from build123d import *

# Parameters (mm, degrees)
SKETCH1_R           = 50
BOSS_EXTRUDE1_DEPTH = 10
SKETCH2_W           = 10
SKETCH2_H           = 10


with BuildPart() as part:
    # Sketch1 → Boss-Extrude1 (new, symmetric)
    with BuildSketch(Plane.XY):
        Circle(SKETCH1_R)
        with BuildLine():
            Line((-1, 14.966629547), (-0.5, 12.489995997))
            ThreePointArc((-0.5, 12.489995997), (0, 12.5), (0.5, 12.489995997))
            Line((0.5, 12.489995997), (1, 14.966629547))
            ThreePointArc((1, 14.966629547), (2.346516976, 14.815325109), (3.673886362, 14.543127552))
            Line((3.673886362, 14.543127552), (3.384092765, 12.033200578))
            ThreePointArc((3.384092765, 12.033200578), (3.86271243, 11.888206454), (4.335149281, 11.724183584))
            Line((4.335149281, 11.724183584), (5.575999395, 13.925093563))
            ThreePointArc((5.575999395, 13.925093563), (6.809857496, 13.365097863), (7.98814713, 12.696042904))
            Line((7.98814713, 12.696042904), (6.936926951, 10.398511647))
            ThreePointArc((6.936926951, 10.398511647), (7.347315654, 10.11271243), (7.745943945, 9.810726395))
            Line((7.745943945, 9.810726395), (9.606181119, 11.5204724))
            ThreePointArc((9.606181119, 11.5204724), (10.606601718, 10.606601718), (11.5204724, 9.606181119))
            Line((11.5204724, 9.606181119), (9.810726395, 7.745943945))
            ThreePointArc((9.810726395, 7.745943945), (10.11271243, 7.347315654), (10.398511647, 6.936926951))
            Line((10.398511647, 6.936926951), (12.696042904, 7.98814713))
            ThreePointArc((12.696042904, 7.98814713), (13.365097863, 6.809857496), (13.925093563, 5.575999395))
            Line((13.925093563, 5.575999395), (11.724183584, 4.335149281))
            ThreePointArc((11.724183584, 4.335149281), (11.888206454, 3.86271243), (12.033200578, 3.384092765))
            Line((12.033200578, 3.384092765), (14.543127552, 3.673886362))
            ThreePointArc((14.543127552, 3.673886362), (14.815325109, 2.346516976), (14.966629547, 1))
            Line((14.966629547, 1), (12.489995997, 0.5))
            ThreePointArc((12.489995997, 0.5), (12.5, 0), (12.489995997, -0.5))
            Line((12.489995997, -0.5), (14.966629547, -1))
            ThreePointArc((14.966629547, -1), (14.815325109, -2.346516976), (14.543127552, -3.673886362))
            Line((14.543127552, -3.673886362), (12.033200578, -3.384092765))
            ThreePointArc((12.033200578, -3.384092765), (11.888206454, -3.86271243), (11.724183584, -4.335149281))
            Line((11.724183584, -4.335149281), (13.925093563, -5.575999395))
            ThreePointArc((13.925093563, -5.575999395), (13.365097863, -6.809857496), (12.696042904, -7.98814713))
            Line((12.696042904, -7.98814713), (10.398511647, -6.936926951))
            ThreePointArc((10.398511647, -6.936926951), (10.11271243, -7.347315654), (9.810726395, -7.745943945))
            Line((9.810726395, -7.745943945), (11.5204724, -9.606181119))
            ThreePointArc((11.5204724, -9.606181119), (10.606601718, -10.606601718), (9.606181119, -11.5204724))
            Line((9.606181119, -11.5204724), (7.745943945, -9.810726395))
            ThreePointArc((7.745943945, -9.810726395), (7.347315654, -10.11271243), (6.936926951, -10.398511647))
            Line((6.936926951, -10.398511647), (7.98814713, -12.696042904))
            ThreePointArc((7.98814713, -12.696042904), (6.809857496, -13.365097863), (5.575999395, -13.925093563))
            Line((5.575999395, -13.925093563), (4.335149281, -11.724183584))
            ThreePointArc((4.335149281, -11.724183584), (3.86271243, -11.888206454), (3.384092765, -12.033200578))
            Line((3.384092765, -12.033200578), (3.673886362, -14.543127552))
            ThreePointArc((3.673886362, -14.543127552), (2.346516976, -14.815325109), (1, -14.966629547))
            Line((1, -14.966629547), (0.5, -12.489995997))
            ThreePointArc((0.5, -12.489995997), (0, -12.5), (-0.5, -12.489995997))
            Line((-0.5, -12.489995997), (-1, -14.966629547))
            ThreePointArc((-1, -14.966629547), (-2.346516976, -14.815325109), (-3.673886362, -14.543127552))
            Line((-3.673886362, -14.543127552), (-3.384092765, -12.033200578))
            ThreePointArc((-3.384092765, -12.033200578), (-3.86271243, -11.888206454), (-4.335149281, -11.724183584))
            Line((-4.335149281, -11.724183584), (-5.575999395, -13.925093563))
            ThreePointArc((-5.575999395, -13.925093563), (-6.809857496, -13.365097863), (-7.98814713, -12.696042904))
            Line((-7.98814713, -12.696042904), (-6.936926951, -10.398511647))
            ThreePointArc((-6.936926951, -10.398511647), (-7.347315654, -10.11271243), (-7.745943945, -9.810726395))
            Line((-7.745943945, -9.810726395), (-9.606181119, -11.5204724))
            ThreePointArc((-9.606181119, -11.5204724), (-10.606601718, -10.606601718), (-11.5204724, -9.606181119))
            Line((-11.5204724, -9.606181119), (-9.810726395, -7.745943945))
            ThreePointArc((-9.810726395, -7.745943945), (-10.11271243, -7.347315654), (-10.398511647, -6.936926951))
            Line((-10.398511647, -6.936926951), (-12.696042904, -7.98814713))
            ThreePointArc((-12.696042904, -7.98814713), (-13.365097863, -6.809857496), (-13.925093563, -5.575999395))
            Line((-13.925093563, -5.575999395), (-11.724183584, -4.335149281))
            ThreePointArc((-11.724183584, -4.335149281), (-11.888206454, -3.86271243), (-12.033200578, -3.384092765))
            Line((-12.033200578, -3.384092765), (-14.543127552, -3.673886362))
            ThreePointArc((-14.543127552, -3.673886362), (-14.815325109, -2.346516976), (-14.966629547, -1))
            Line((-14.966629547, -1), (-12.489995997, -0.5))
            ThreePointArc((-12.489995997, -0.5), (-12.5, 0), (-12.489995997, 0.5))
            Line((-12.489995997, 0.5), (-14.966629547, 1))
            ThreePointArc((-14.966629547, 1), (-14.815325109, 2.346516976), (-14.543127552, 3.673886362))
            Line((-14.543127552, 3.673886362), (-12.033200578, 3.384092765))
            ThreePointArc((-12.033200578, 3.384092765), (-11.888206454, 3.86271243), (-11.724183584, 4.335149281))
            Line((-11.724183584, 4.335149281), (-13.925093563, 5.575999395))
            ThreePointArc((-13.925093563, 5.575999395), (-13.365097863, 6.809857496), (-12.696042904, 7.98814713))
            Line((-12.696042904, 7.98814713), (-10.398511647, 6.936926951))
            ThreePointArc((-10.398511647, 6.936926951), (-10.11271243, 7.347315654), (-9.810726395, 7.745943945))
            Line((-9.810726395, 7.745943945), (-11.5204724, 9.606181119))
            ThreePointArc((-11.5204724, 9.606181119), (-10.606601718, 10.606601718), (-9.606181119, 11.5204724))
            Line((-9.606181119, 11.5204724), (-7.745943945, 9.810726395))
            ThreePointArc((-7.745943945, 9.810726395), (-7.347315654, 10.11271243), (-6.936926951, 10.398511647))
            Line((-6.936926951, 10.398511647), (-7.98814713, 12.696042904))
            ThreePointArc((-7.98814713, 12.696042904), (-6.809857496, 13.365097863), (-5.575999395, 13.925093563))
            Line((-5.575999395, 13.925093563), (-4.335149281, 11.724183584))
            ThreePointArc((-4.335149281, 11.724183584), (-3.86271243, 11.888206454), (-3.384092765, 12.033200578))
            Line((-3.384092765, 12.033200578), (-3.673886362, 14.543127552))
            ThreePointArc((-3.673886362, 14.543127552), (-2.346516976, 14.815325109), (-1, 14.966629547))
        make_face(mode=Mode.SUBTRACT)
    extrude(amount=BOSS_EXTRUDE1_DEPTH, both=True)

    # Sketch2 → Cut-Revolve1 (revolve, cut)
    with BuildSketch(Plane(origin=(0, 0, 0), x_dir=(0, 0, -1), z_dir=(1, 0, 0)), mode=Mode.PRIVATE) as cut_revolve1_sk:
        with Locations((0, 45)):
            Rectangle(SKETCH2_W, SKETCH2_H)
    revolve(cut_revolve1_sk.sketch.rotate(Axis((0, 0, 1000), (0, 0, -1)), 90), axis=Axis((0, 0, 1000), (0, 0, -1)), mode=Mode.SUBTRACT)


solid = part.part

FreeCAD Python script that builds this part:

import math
import FreeCAD as App
import Part
import Sketcher

V = App.Vector

doc = App.newDocument("Part")
body = doc.addObject("PartDesign::Body", "Body")

sketch1 = body.newObject("Sketcher::SketchObject", "Sketch")
sketch1.AttachmentSupport = (doc.getObject("XY_Plane"), [""])
sketch1.MapMode = "FlatFace"
sketch1.addGeometry(Part.Circle(V(0, 0, 0), V(0, 0, 1), 50), False)
sketch1.addGeometry(Part.ArcOfCircle(Part.Circle(V(0, 0, 0), V(0, 0, 1), 15), math.radians(93.822554), math.radians(104.177446)), False)
sketch1.addGeometry(Part.LineSegment(V(-1, 14.96663, 0), V(-0.5, 12.489996, 0)), False)
sketch1.addGeometry(Part.ArcOfCircle(Part.Circle(V(0, 0, 0), V(0, 0, 1), 12.5), math.radians(87.707557), math.radians(92.292443)), False)
sketch1.addGeometry(Part.LineSegment(V(0.5, 12.489996, 0), V(1, 14.96663, 0)), False)
sketch1.addGeometry(Part.ArcOfCircle(Part.Circle(V(0, 0, 0), V(0, 0, 1), 15), math.radians(75.822554), math.radians(86.177446)), False)
sketch1.addGeometry(Part.LineSegment(V(3.673886, 14.543128, 0), V(3.384093, 12.033201, 0)), False)
sketch1.addGeometry(Part.ArcOfCircle(Part.Circle(V(0, 0.000001, 0), V(0, 0, 1), 12.499999), math.radians(69.707557), math.radians(74.292443)), False)
sketch1.addGeometry(Part.LineSegment(V(4.335149, 11.724184, 0), V(5.575999, 13.925094, 0)), False)
sketch1.addGeometry(Part.ArcOfCircle(Part.Circle(V(0, 0, 0), V(0, 0, 1), 15), math.radians(57.822554), math.radians(68.177446)), False)
sketch1.addGeometry(Part.LineSegment(V(7.988147, 12.696043, 0), V(6.936927, 10.398512, 0)), False)
sketch1.addGeometry(Part.ArcOfCircle(Part.Circle(V(0, 0.000001, 0), V(0, 0, 1), 12.499999), math.radians(51.707557), math.radians(56.292443)), False)
sketch1.addGeometry(Part.LineSegment(V(7.745944, 9.810726, 0), V(9.606181, 11.520472, 0)), False)
sketch1.addGeometry(Part.ArcOfCircle(Part.Circle(V(0, 0, 0), V(0, 0, 1), 15), math.radians(39.822554), math.radians(50.177446)), False)
sketch1.addGeometry(Part.LineSegment(V(11.520472, 9.606181, 0), V(9.810726, 7.745944, 0)), False)
sketch1.addGeometry(Part.ArcOfCircle(Part.Circle(V(0.000001, 0, 0), V(0, 0, 1), 12.499999), math.radians(33.707557), math.radians(38.292443)), False)
sketch1.addGeometry(Part.LineSegment(V(10.398512, 6.936927, 0), V(12.696043, 7.988147, 0)), False)
sketch1.addGeometry(Part.ArcOfCircle(Part.Circle(V(0, 0, 0), V(0, 0, 1), 15), math.radians(21.822554), math.radians(32.177446)), False)
sketch1.addGeometry(Part.LineSegment(V(13.925094, 5.575999, 0), V(11.724184, 4.335149, 0)), False)
sketch1.addGeometry(Part.ArcOfCircle(Part.Circle(V(0.000001, 0, 0), V(0, 0, 1), 12.499999), math.radians(15.707557), math.radians(20.292443)), False)
sketch1.addGeometry(Part.LineSegment(V(12.033201, 3.384093, 0), V(14.543128, 3.673886, 0)), False)
sketch1.addGeometry(Part.ArcOfCircle(Part.Circle(V(0, 0, 0), V(0, 0, 1), 15), math.radians(3.822554), math.radians(14.177446)), False)
sketch1.addGeometry(Part.LineSegment(V(14.96663, 1, 0), V(12.489996, 0.5, 0)), False)
sketch1.addGeometry(Part.ArcOfCircle(Part.Circle(V(0, 0, 0), V(0, 0, 1), 12.5), math.radians(-2.292443), math.radians(2.292443)), False)
sketch1.addGeometry(Part.LineSegment(V(12.489996, -0.5, 0), V(14.96663, -1, 0)), False)
sketch1.addGeometry(Part.ArcOfCircle(Part.Circle(V(0, 0, 0), V(0, 0, 1), 15), math.radians(-14.177446), math.radians(-3.822554)), False)
sketch1.addGeometry(Part.LineSegment(V(14.543128, -3.673886, 0), V(12.033201, -3.384093, 0)), False)
sketch1.addGeometry(Part.ArcOfCircle(Part.Circle(V(0.000001, 0, 0), V(0, 0, 1), 12.499999), math.radians(-20.292443), math.radians(-15.707557)), False)
sketch1.addGeometry(Part.LineSegment(V(11.724184, -4.335149, 0), V(13.925094, -5.575999, 0)), False)
sketch1.addGeometry(Part.ArcOfCircle(Part.Circle(V(0, 0, 0), V(0, 0, 1), 15), math.radians(-32.177446), math.radians(-21.822554)), False)
sketch1.addGeometry(Part.LineSegment(V(12.696043, -7.988147, 0), V(10.398512, -6.936927, 0)), False)
sketch1.addGeometry(Part.ArcOfCircle(Part.Circle(V(0.000001, 0, 0), V(0, 0, 1), 12.499999), math.radians(-38.292443), math.radians(-33.707557)), False)
sketch1.addGeometry(Part.LineSegment(V(9.810726, -7.745944, 0), V(11.520472, -9.606181, 0)), False)
sketch1.addGeometry(Part.ArcOfCircle(Part.Circle(V(0, 0, 0), V(0, 0, 1), 15), math.radians(-50.177446), math.radians(-39.822554)), False)
sketch1.addGeometry(Part.LineSegment(V(9.606181, -11.520472, 0), V(7.745944, -9.810726, 0)), False)
sketch1.addGeometry(Part.ArcOfCircle(Part.Circle(V(0, -0.000001, 0), V(0, 0, 1), 12.499999), math.radians(-56.292443), math.radians(-51.707557)), False)
sketch1.addGeometry(Part.LineSegment(V(6.936927, -10.398512, 0), V(7.988147, -12.696043, 0)), False)
sketch1.addGeometry(Part.ArcOfCircle(Part.Circle(V(0, 0, 0), V(0, 0, 1), 15), math.radians(-68.177446), math.radians(-57.822554)), False)
sketch1.addGeometry(Part.LineSegment(V(5.575999, -13.925094, 0), V(4.335149, -11.724184, 0)), False)
sketch1.addGeometry(Part.ArcOfCircle(Part.Circle(V(0, -0.000001, 0), V(0, 0, 1), 12.499999), math.radians(-74.292443), math.radians(-69.707557)), False)
sketch1.addGeometry(Part.LineSegment(V(3.384093, -12.033201, 0), V(3.673886, -14.543128, 0)), False)
sketch1.addGeometry(Part.ArcOfCircle(Part.Circle(V(0, 0, 0), V(0, 0, 1), 15), math.radians(-86.177446), math.radians(-75.822554)), False)
sketch1.addGeometry(Part.LineSegment(V(1, -14.96663, 0), V(0.5, -12.489996, 0)), False)
sketch1.addGeometry(Part.ArcOfCircle(Part.Circle(V(0, 0, 0), V(0, 0, 1), 12.5), math.radians(-92.292443), math.radians(-87.707557)), False)
sketch1.addGeometry(Part.LineSegment(V(-0.5, -12.489996, 0), V(-1, -14.96663, 0)), False)
sketch1.addGeometry(Part.ArcOfCircle(Part.Circle(V(0, 0, 0), V(0, 0, 1), 15), math.radians(-104.177446), math.radians(-93.822554)), False)
sketch1.addGeometry(Part.LineSegment(V(-3.673886, -14.543128, 0), V(-3.384093, -12.033201, 0)), False)
sketch1.addGeometry(Part.ArcOfCircle(Part.Circle(V(0, -0.000001, 0), V(0, 0, 1), 12.499999), math.radians(-110.292443), math.radians(-105.707557)), False)
sketch1.addGeometry(Part.LineSegment(V(-4.335149, -11.724184, 0), V(-5.575999, -13.925094, 0)), False)
sketch1.addGeometry(Part.ArcOfCircle(Part.Circle(V(0, 0, 0), V(0, 0, 1), 15), math.radians(-122.177446), math.radians(-111.822554)), False)
sketch1.addGeometry(Part.LineSegment(V(-7.988147, -12.696043, 0), V(-6.936927, -10.398512, 0)), False)
sketch1.addGeometry(Part.ArcOfCircle(Part.Circle(V(0, -0.000001, 0), V(0, 0, 1), 12.499999), math.radians(-128.292443), math.radians(-123.707557)), False)
sketch1.addGeometry(Part.LineSegment(V(-7.745944, -9.810726, 0), V(-9.606181, -11.520472, 0)), False)
sketch1.addGeometry(Part.ArcOfCircle(Part.Circle(V(0, 0, 0), V(0, 0, 1), 15), math.radians(-140.177446), math.radians(-129.822554)), False)
sketch1.addGeometry(Part.LineSegment(V(-11.520472, -9.606181, 0), V(-9.810726, -7.745944, 0)), False)
sketch1.addGeometry(Part.ArcOfCircle(Part.Circle(V(-0.000001, 0, 0), V(0, 0, 1), 12.499999), math.radians(-146.292443), math.radians(-141.707557)), False)
sketch1.addGeometry(Part.LineSegment(V(-10.398512, -6.936927, 0), V(-12.696043, -7.988147, 0)), False)
sketch1.addGeometry(Part.ArcOfCircle(Part.Circle(V(0, 0, 0), V(0, 0, 1), 15), math.radians(-158.177446), math.radians(-147.822554)), False)
sketch1.addGeometry(Part.LineSegment(V(-13.925094, -5.575999, 0), V(-11.724184, -4.335149, 0)), False)
sketch1.addGeometry(Part.ArcOfCircle(Part.Circle(V(-0.000001, 0, 0), V(0, 0, 1), 12.499999), math.radians(-164.292443), math.radians(-159.707557)), False)
sketch1.addGeometry(Part.LineSegment(V(-12.033201, -3.384093, 0), V(-14.543128, -3.673886, 0)), False)
sketch1.addGeometry(Part.ArcOfCircle(Part.Circle(V(0, 0, 0), V(0, 0, 1), 15), math.radians(-176.177446), math.radians(-165.822554)), False)
sketch1.addGeometry(Part.LineSegment(V(-14.96663, -1, 0), V(-12.489996, -0.5, 0)), False)
sketch1.addGeometry(Part.ArcOfCircle(Part.Circle(V(0, 0, 0), V(0, 0, 1), 12.5), math.radians(177.707557), math.radians(182.292443)), False)
sketch1.addGeometry(Part.LineSegment(V(-12.489996, 0.5, 0), V(-14.96663, 1, 0)), False)
sketch1.addGeometry(Part.ArcOfCircle(Part.Circle(V(0, 0, 0), V(0, 0, 1), 15), math.radians(165.822554), math.radians(176.177446)), False)
sketch1.addGeometry(Part.LineSegment(V(-14.543128, 3.673886, 0), V(-12.033201, 3.384093, 0)), False)
sketch1.addGeometry(Part.ArcOfCircle(Part.Circle(V(-0.000001, 0, 0), V(0, 0, 1), 12.499999), math.radians(159.707557), math.radians(164.292443)), False)
sketch1.addGeometry(Part.LineSegment(V(-11.724184, 4.335149, 0), V(-13.925094, 5.575999, 0)), False)
sketch1.addGeometry(Part.ArcOfCircle(Part.Circle(V(0, 0, 0), V(0, 0, 1), 15), math.radians(147.822554), math.radians(158.177446)), False)
sketch1.addGeometry(Part.LineSegment(V(-12.696043, 7.988147, 0), V(-10.398512, 6.936927, 0)), False)
sketch1.addGeometry(Part.ArcOfCircle(Part.Circle(V(-0.000001, 0, 0), V(0, 0, 1), 12.499999), math.radians(141.707557), math.radians(146.292443)), False)
sketch1.addGeometry(Part.LineSegment(V(-9.810726, 7.745944, 0), V(-11.520472, 9.606181, 0)), False)
sketch1.addGeometry(Part.ArcOfCircle(Part.Circle(V(0, 0, 0), V(0, 0, 1), 15), math.radians(129.822554), math.radians(140.177446)), False)
sketch1.addGeometry(Part.LineSegment(V(-9.606181, 11.520472, 0), V(-7.745944, 9.810726, 0)), False)
sketch1.addGeometry(Part.ArcOfCircle(Part.Circle(V(0, 0.000001, 0), V(0, 0, 1), 12.499999), math.radians(123.707557), math.radians(128.292443)), False)
sketch1.addGeometry(Part.LineSegment(V(-6.936927, 10.398512, 0), V(-7.988147, 12.696043, 0)), False)
sketch1.addGeometry(Part.ArcOfCircle(Part.Circle(V(0, 0, 0), V(0, 0, 1), 15), math.radians(111.822554), math.radians(122.177446)), False)
sketch1.addGeometry(Part.LineSegment(V(-5.575999, 13.925094, 0), V(-4.335149, 11.724184, 0)), False)
sketch1.addGeometry(Part.ArcOfCircle(Part.Circle(V(0, 0.000001, 0), V(0, 0, 1), 12.499999), math.radians(105.707557), math.radians(110.292443)), False)
sketch1.addGeometry(Part.LineSegment(V(-3.384093, 12.033201, 0), V(-3.673886, 14.543128, 0)), False)
sketch1.addConstraint(Sketcher.Constraint("Coincident", 1, 1, 2, 1))
sketch1.addConstraint(Sketcher.Constraint("Coincident", 2, 2, 3, 2))
sketch1.addConstraint(Sketcher.Constraint("Coincident", 3, 1, 4, 1))
sketch1.addConstraint(Sketcher.Constraint("Coincident", 4, 2, 5, 2))
sketch1.addConstraint(Sketcher.Constraint("Coincident", 5, 1, 6, 1))
sketch1.addConstraint(Sketcher.Constraint("Coincident", 6, 2, 7, 2))
sketch1.addConstraint(Sketcher.Constraint("Coincident", 7, 1, 8, 1))
sketch1.addConstraint(Sketcher.Constraint("Coincident", 8, 2, 9, 2))
sketch1.addConstraint(Sketcher.Constraint("Coincident", 9, 1, 10, 1))
sketch1.addConstraint(Sketcher.Constraint("Coincident", 10, 2, 11, 2))
sketch1.addConstraint(Sketcher.Constraint("Coincident", 11, 1, 12, 1))
sketch1.addConstraint(Sketcher.Constraint("Coincident", 12, 2, 13, 2))
sketch1.addConstraint(Sketcher.Constraint("Coincident", 13, 1, 14, 1))
sketch1.addConstraint(Sketcher.Constraint("Coincident", 14, 2, 15, 2))
sketch1.addConstraint(Sketcher.Constraint("Coincident", 15, 1, 16, 1))
sketch1.addConstraint(Sketcher.Constraint("Coincident", 16, 2, 17, 2))
sketch1.addConstraint(Sketcher.Constraint("Coincident", 17, 1, 18, 1))
sketch1.addConstraint(Sketcher.Constraint("Coincident", 18, 2, 19, 2))
sketch1.addConstraint(Sketcher.Constraint("Coincident", 19, 1, 20, 1))
sketch1.addConstraint(Sketcher.Constraint("Coincident", 20, 2, 21, 2))
sketch1.addConstraint(Sketcher.Constraint("Coincident", 21, 1, 22, 1))
sketch1.addConstraint(Sketcher.Constraint("Coincident", 22, 2, 23, 2))
sketch1.addConstraint(Sketcher.Constraint("Coincident", 23, 1, 24, 1))
sketch1.addConstraint(Sketcher.Constraint("Coincident", 24, 2, 25, 2))
sketch1.addConstraint(Sketcher.Constraint("Coincident", 25, 1, 26, 1))
sketch1.addConstraint(Sketcher.Constraint("Coincident", 26, 2, 27, 2))
sketch1.addConstraint(Sketcher.Constraint("Coincident", 27, 1, 28, 1))
sketch1.addConstraint(Sketcher.Constraint("Coincident", 28, 2, 29, 2))
sketch1.addConstraint(Sketcher.Constraint("Coincident", 29, 1, 30, 1))
sketch1.addConstraint(Sketcher.Constraint("Coincident", 30, 2, 31, 2))
sketch1.addConstraint(Sketcher.Constraint("Coincident", 31, 1, 32, 1))
sketch1.addConstraint(Sketcher.Constraint("Coincident", 32, 2, 33, 2))
sketch1.addConstraint(Sketcher.Constraint("Coincident", 33, 1, 34, 1))
sketch1.addConstraint(Sketcher.Constraint("Coincident", 34, 2, 35, 2))
sketch1.addConstraint(Sketcher.Constraint("Coincident", 35, 1, 36, 1))
sketch1.addConstraint(Sketcher.Constraint("Coincident", 36, 2, 37, 2))
sketch1.addConstraint(Sketcher.Constraint("Coincident", 37, 1, 38, 1))
sketch1.addConstraint(Sketcher.Constraint("Coincident", 38, 2, 39, 2))
sketch1.addConstraint(Sketcher.Constraint("Coincident", 39, 1, 40, 1))
sketch1.addConstraint(Sketcher.Constraint("Coincident", 40, 2, 41, 2))
sketch1.addConstraint(Sketcher.Constraint("Coincident", 41, 1, 42, 1))
sketch1.addConstraint(Sketcher.Constraint("Coincident", 42, 2, 43, 2))
sketch1.addConstraint(Sketcher.Constraint("Coincident", 43, 1, 44, 1))
sketch1.addConstraint(Sketcher.Constraint("Coincident", 44, 2, 45, 2))
sketch1.addConstraint(Sketcher.Constraint("Coincident", 45, 1, 46, 1))
sketch1.addConstraint(Sketcher.Constraint("Coincident", 46, 2, 47, 2))
sketch1.addConstraint(Sketcher.Constraint("Coincident", 47, 1, 48, 1))
sketch1.addConstraint(Sketcher.Constraint("Coincident", 48, 2, 49, 2))
sketch1.addConstraint(Sketcher.Constraint("Coincident", 49, 1, 50, 1))
sketch1.addConstraint(Sketcher.Constraint("Coincident", 50, 2, 51, 2))
sketch1.addConstraint(Sketcher.Constraint("Coincident", 51, 1, 52, 1))
sketch1.addConstraint(Sketcher.Constraint("Coincident", 52, 2, 53, 2))
sketch1.addConstraint(Sketcher.Constraint("Coincident", 53, 1, 54, 1))
sketch1.addConstraint(Sketcher.Constraint("Coincident", 54, 2, 55, 2))
sketch1.addConstraint(Sketcher.Constraint("Coincident", 55, 1, 56, 1))
sketch1.addConstraint(Sketcher.Constraint("Coincident", 56, 2, 57, 2))
sketch1.addConstraint(Sketcher.Constraint("Coincident", 57, 1, 58, 1))
sketch1.addConstraint(Sketcher.Constraint("Coincident", 58, 2, 59, 2))
sketch1.addConstraint(Sketcher.Constraint("Coincident", 59, 1, 60, 1))
sketch1.addConstraint(Sketcher.Constraint("Coincident", 60, 2, 61, 2))
sketch1.addConstraint(Sketcher.Constraint("Coincident", 61, 1, 62, 1))
sketch1.addConstraint(Sketcher.Constraint("Coincident", 62, 2, 63, 2))
sketch1.addConstraint(Sketcher.Constraint("Coincident", 63, 1, 64, 1))
sketch1.addConstraint(Sketcher.Constraint("Coincident", 64, 2, 65, 2))
sketch1.addConstraint(Sketcher.Constraint("Coincident", 65, 1, 66, 1))
sketch1.addConstraint(Sketcher.Constraint("Coincident", 66, 2, 67, 2))
sketch1.addConstraint(Sketcher.Constraint("Coincident", 67, 1, 68, 1))
sketch1.addConstraint(Sketcher.Constraint("Coincident", 68, 2, 69, 2))
sketch1.addConstraint(Sketcher.Constraint("Coincident", 69, 1, 70, 1))
sketch1.addConstraint(Sketcher.Constraint("Coincident", 70, 2, 71, 2))
sketch1.addConstraint(Sketcher.Constraint("Coincident", 71, 1, 72, 1))
sketch1.addConstraint(Sketcher.Constraint("Coincident", 72, 2, 73, 2))
sketch1.addConstraint(Sketcher.Constraint("Coincident", 73, 1, 74, 1))
sketch1.addConstraint(Sketcher.Constraint("Coincident", 74, 2, 75, 2))
sketch1.addConstraint(Sketcher.Constraint("Coincident", 75, 1, 76, 1))
sketch1.addConstraint(Sketcher.Constraint("Coincident", 76, 2, 77, 2))
sketch1.addConstraint(Sketcher.Constraint("Coincident", 77, 1, 78, 1))
sketch1.addConstraint(Sketcher.Constraint("Coincident", 78, 2, 79, 2))
sketch1.addConstraint(Sketcher.Constraint("Coincident", 79, 1, 80, 1))
sketch1.addConstraint(Sketcher.Constraint("Coincident", 80, 2, 1, 2))
sketch1.addConstraint(Sketcher.Constraint("Coincident", 0, 3, -1, 1))
sketch1.addConstraint(Sketcher.Constraint("Coincident", 1, 3, -1, 1))
sketch1.addConstraint(Sketcher.Constraint("Coincident", 3, 3, -1, 1))
sketch1.addConstraint(Sketcher.Constraint("Coincident", 5, 3, -1, 1))
sketch1.addConstraint(Sketcher.Constraint("Coincident", 7, 3, -1, 1))
sketch1.addConstraint(Sketcher.Constraint("Coincident", 9, 3, -1, 1))
sketch1.addConstraint(Sketcher.Constraint("Coincident", 11, 3, -1, 1))
sketch1.addConstraint(Sketcher.Constraint("Coincident", 13, 3, -1, 1))
sketch1.addConstraint(Sketcher.Constraint("Coincident", 15, 3, -1, 1))
sketch1.addConstraint(Sketcher.Constraint("Coincident", 17, 3, -1, 1))
sketch1.addConstraint(Sketcher.Constraint("Coincident", 19, 3, -1, 1))
sketch1.addConstraint(Sketcher.Constraint("Coincident", 21, 3, -1, 1))
sketch1.addConstraint(Sketcher.Constraint("Coincident", 23, 3, -1, 1))
sketch1.addConstraint(Sketcher.Constraint("Coincident", 25, 3, -1, 1))
sketch1.addConstraint(Sketcher.Constraint("Coincident", 27, 3, -1, 1))
sketch1.addConstraint(Sketcher.Constraint("Coincident", 29, 3, -1, 1))
sketch1.addConstraint(Sketcher.Constraint("Coincident", 31, 3, -1, 1))
sketch1.addConstraint(Sketcher.Constraint("Coincident", 33, 3, -1, 1))
sketch1.addConstraint(Sketcher.Constraint("Coincident", 35, 3, -1, 1))
sketch1.addConstraint(Sketcher.Constraint("Coincident", 37, 3, -1, 1))
sketch1.addConstraint(Sketcher.Constraint("Coincident", 39, 3, -1, 1))
sketch1.addConstraint(Sketcher.Constraint("Coincident", 41, 3, -1, 1))
sketch1.addConstraint(Sketcher.Constraint("Coincident", 43, 3, -1, 1))
sketch1.addConstraint(Sketcher.Constraint("Coincident", 45, 3, -1, 1))
sketch1.addConstraint(Sketcher.Constraint("Coincident", 47, 3, -1, 1))
sketch1.addConstraint(Sketcher.Constraint("Coincident", 49, 3, -1, 1))
sketch1.addConstraint(Sketcher.Constraint("Coincident", 51, 3, -1, 1))
sketch1.addConstraint(Sketcher.Constraint("Coincident", 53, 3, -1, 1))
sketch1.addConstraint(Sketcher.Constraint("Coincident", 55, 3, -1, 1))
sketch1.addConstraint(Sketcher.Constraint("Coincident", 57, 3, -1, 1))
sketch1.addConstraint(Sketcher.Constraint("Coincident", 59, 3, -1, 1))
sketch1.addConstraint(Sketcher.Constraint("Coincident", 61, 3, -1, 1))
sketch1.addConstraint(Sketcher.Constraint("Coincident", 63, 3, -1, 1))
sketch1.addConstraint(Sketcher.Constraint("Coincident", 65, 3, -1, 1))
sketch1.addConstraint(Sketcher.Constraint("Coincident", 67, 3, -1, 1))
sketch1.addConstraint(Sketcher.Constraint("Coincident", 69, 3, -1, 1))
sketch1.addConstraint(Sketcher.Constraint("Coincident", 71, 3, -1, 1))
sketch1.addConstraint(Sketcher.Constraint("Coincident", 73, 3, -1, 1))
sketch1.addConstraint(Sketcher.Constraint("Coincident", 75, 3, -1, 1))
sketch1.addConstraint(Sketcher.Constraint("Coincident", 77, 3, -1, 1))
sketch1.addConstraint(Sketcher.Constraint("Coincident", 79, 3, -1, 1))
sketch1.addConstraint(Sketcher.Constraint("Equal", 1, 5))
sketch1.addConstraint(Sketcher.Constraint("Equal", 3, 7))
sketch1.addConstraint(Sketcher.Constraint("Equal", 5, 9))
sketch1.addConstraint(Sketcher.Constraint("Equal", 7, 11))
sketch1.addConstraint(Sketcher.Constraint("Equal", 9, 13))
sketch1.addConstraint(Sketcher.Constraint("Equal", 11, 15))
sketch1.addConstraint(Sketcher.Constraint("Equal", 13, 17))
sketch1.addConstraint(Sketcher.Constraint("Equal", 15, 19))
sketch1.addConstraint(Sketcher.Constraint("Equal", 17, 21))
sketch1.addConstraint(Sketcher.Constraint("Equal", 19, 23))
sketch1.addConstraint(Sketcher.Constraint("Equal", 21, 25))
sketch1.addConstraint(Sketcher.Constraint("Equal", 23, 27))
sketch1.addConstraint(Sketcher.Constraint("Equal", 25, 29))
sketch1.addConstraint(Sketcher.Constraint("Equal", 27, 31))
sketch1.addConstraint(Sketcher.Constraint("Equal", 29, 33))
sketch1.addConstraint(Sketcher.Constraint("Equal", 31, 35))
sketch1.addConstraint(Sketcher.Constraint("Equal", 33, 37))
sketch1.addConstraint(Sketcher.Constraint("Equal", 35, 39))
sketch1.addConstraint(Sketcher.Constraint("Equal", 37, 41))
sketch1.addConstraint(Sketcher.Constraint("Equal", 39, 43))
sketch1.addConstraint(Sketcher.Constraint("Equal", 41, 45))
sketch1.addConstraint(Sketcher.Constraint("Equal", 43, 47))
sketch1.addConstraint(Sketcher.Constraint("Equal", 45, 49))
sketch1.addConstraint(Sketcher.Constraint("Equal", 47, 51))
sketch1.addConstraint(Sketcher.Constraint("Equal", 49, 53))
sketch1.addConstraint(Sketcher.Constraint("Equal", 51, 55))
sketch1.addConstraint(Sketcher.Constraint("Equal", 53, 57))
sketch1.addConstraint(Sketcher.Constraint("Equal", 55, 59))
sketch1.addConstraint(Sketcher.Constraint("Equal", 57, 61))
sketch1.addConstraint(Sketcher.Constraint("Equal", 59, 63))
sketch1.addConstraint(Sketcher.Constraint("Equal", 61, 65))
sketch1.addConstraint(Sketcher.Constraint("Equal", 63, 67))
sketch1.addConstraint(Sketcher.Constraint("Equal", 65, 69))
sketch1.addConstraint(Sketcher.Constraint("Equal", 67, 71))
sketch1.addConstraint(Sketcher.Constraint("Equal", 69, 73))
sketch1.addConstraint(Sketcher.Constraint("Equal", 71, 75))
sketch1.addConstraint(Sketcher.Constraint("Equal", 73, 77))
sketch1.addConstraint(Sketcher.Constraint("Equal", 75, 79))
sketch1.addConstraint(Sketcher.Constraint("Perpendicular", 2, 22))
sketch1.addConstraint(Sketcher.Constraint("Perpendicular", 4, 24))
sketch1.addConstraint(Sketcher.Constraint("Perpendicular", 6, 26))
sketch1.addConstraint(Sketcher.Constraint("Perpendicular", 8, 28))
sketch1.addConstraint(Sketcher.Constraint("Perpendicular", 10, 30))
sketch1.addConstraint(Sketcher.Constraint("Perpendicular", 12, 32))
sketch1.addConstraint(Sketcher.Constraint("Perpendicular", 14, 34))
sketch1.addConstraint(Sketcher.Constraint("Perpendicular", 16, 36))
sketch1.addConstraint(Sketcher.Constraint("Perpendicular", 18, 38))
sketch1.addConstraint(Sketcher.Constraint("Perpendicular", 20, 40))
sketch1.addConstraint(Sketcher.Constraint("Perpendicular", 22, 42))
sketch1.addConstraint(Sketcher.Constraint("Perpendicular", 24, 44))
sketch1.addConstraint(Sketcher.Constraint("Perpendicular", 26, 46))
sketch1.addConstraint(Sketcher.Constraint("Perpendicular", 28, 48))
sketch1.addConstraint(Sketcher.Constraint("Perpendicular", 30, 50))
sketch1.addConstraint(Sketcher.Constraint("Perpendicular", 32, 52))
sketch1.addConstraint(Sketcher.Constraint("Perpendicular", 34, 54))
sketch1.addConstraint(Sketcher.Constraint("Perpendicular", 36, 56))
sketch1.addConstraint(Sketcher.Constraint("Perpendicular", 38, 58))
sketch1.addConstraint(Sketcher.Constraint("Perpendicular", 40, 60))
sketch1.addConstraint(Sketcher.Constraint("Perpendicular", 42, 62))
sketch1.addConstraint(Sketcher.Constraint("Perpendicular", 44, 64))
sketch1.addConstraint(Sketcher.Constraint("Perpendicular", 46, 66))
sketch1.addConstraint(Sketcher.Constraint("Perpendicular", 48, 68))
sketch1.addConstraint(Sketcher.Constraint("Perpendicular", 50, 70))
sketch1.addConstraint(Sketcher.Constraint("Perpendicular", 52, 72))
sketch1.addConstraint(Sketcher.Constraint("Perpendicular", 54, 74))
sketch1.addConstraint(Sketcher.Constraint("Perpendicular", 56, 76))
sketch1.addConstraint(Sketcher.Constraint("Perpendicular", 58, 78))
sketch1.addConstraint(Sketcher.Constraint("Perpendicular", 60, 80))
sketch1.addConstraint(Sketcher.Constraint("Horizontal", 2, 2, 3, 1))
sketch1.addConstraint(Sketcher.Constraint("Horizontal", 1, 1, 4, 2))
sketch1.addConstraint(Sketcher.Constraint("Horizontal", 42, 2, 43, 1))
sketch1.addConstraint(Sketcher.Constraint("Horizontal", 40, 2, 45, 1))
sketch1.addConstraint(Sketcher.Constraint("Horizontal", 39, 1, 46, 2))
sketch1.addConstraint(Sketcher.Constraint("Horizontal", 38, 2, 47, 1))
sketch1.addConstraint(Sketcher.Constraint("Horizontal", 37, 1, 48, 2))
sketch1.addConstraint(Sketcher.Constraint("Horizontal", 36, 2, 49, 1))
sketch1.addConstraint(Sketcher.Constraint("Horizontal", 35, 1, 50, 2))
sketch1.addConstraint(Sketcher.Constraint("Horizontal", 34, 2, 51, 1))
sketch1.addConstraint(Sketcher.Constraint("Horizontal", 33, 1, 52, 2))
sketch1.addConstraint(Sketcher.Constraint("Horizontal", 32, 2, 53, 1))
sketch1.addConstraint(Sketcher.Constraint("Horizontal", 30, 2, 55, 1))
sketch1.addConstraint(Sketcher.Constraint("Horizontal", 28, 2, 57, 1))
sketch1.addConstraint(Sketcher.Constraint("Horizontal", 26, 2, 59, 1))
sketch1.addConstraint(Sketcher.Constraint("Horizontal", 24, 2, 61, 1))
sketch1.addConstraint(Sketcher.Constraint("Horizontal", 22, 2, 63, 1))
sketch1.addConstraint(Sketcher.Constraint("Horizontal", 20, 2, 65, 1))
sketch1.addConstraint(Sketcher.Constraint("Horizontal", 18, 2, 67, 1))
sketch1.addConstraint(Sketcher.Constraint("Horizontal", 16, 2, 69, 1))
sketch1.addConstraint(Sketcher.Constraint("Horizontal", 14, 2, 71, 1))
sketch1.addConstraint(Sketcher.Constraint("Horizontal", 12, 2, 73, 1))
sketch1.addConstraint(Sketcher.Constraint("Horizontal", 10, 2, 75, 1))
sketch1.addConstraint(Sketcher.Constraint("Horizontal", 8, 2, 77, 1))
sketch1.addConstraint(Sketcher.Constraint("Horizontal", 6, 2, 79, 1))
sketch1.addConstraint(Sketcher.Constraint("Vertical", 22, 2, 23, 1))
sketch1.addConstraint(Sketcher.Constraint("Vertical", 20, 2, 25, 1))
sketch1.addConstraint(Sketcher.Constraint("Vertical", 18, 2, 27, 1))
sketch1.addConstraint(Sketcher.Constraint("Vertical", 16, 2, 29, 1))
sketch1.addConstraint(Sketcher.Constraint("Vertical", 14, 2, 31, 1))
sketch1.addConstraint(Sketcher.Constraint("Vertical", 12, 2, 33, 1))
sketch1.addConstraint(Sketcher.Constraint("Vertical", 10, 2, 35, 1))
sketch1.addConstraint(Sketcher.Constraint("Vertical", 8, 2, 37, 1))
sketch1.addConstraint(Sketcher.Constraint("Vertical", 6, 2, 39, 1))
sketch1.addConstraint(Sketcher.Constraint("Vertical", 4, 2, 41, 1))
sketch1.addConstraint(Sketcher.Constraint("Equal", 4, 6))
sketch1.addConstraint(Sketcher.Constraint("Equal", 6, 8))
sketch1.addConstraint(Sketcher.Constraint("Equal", 8, 10))
sketch1.addConstraint(Sketcher.Constraint("Equal", 10, 12))
sketch1.addConstraint(Sketcher.Constraint("Equal", 12, 14))
sketch1.addConstraint(Sketcher.Constraint("Equal", 14, 16))
sketch1.addConstraint(Sketcher.Constraint("Equal", 16, 18))
sketch1.addConstraint(Sketcher.Constraint("Equal", 18, 20))
sketch1.addConstraint(Sketcher.Constraint("Equal", 20, 22))
sketch1.addConstraint(Sketcher.Constraint("Diameter", 0, 100.0))
sketch1.addConstraint(Sketcher.Constraint("Radius", 1, 15.0))
sketch1.addConstraint(Sketcher.Constraint("Radius", 3, 12.5))
sketch1.addConstraint(Sketcher.Constraint("DistanceX", 1, 1, -1, 1, 1.0))
sketch1.addConstraint(Sketcher.Constraint("DistanceX", 2, 2, -1, 1, 0.5))
sketch1.addConstraint(Sketcher.Constraint("DistanceX", -1, 1, 8, 2, 5.575999))
sketch1.addConstraint(Sketcher.Constraint("DistanceY", -1, 1, 6, 2, 12.033201))
sketch1.addConstraint(Sketcher.Constraint("DistanceY", -1, 1, 10, 2, 10.398512))
sketch1.addConstraint(Sketcher.Constraint("DistanceX", -1, 1, 12, 2, 9.606181))
pad1 = body.newObject("PartDesign::Pad", "Pad")
pad1.Profile = sketch1
pad1.Length = 20
pad1.Midplane = True

sketch2 = body.newObject("Sketcher::SketchObject", "Sketch001")
sketch2.AttachmentSupport = (doc.getObject("YZ_Plane"), [""])
sketch2.MapMode = "FlatFace"
sketch2.addGeometry(Part.LineSegment(V(50, 5, 0), V(40, 5, 0)), False)
sketch2.addGeometry(Part.LineSegment(V(40, 5, 0), V(40, -5, 0)), False)
sketch2.addGeometry(Part.LineSegment(V(40, -5, 0), V(50, -5, 0)), False)
sketch2.addGeometry(Part.LineSegment(V(50, -5, 0), V(50, 5, 0)), False)
sketch2.addConstraint(Sketcher.Constraint("Coincident", 0, 2, 1, 1))
sketch2.addConstraint(Sketcher.Constraint("Coincident", 1, 2, 2, 1))
sketch2.addConstraint(Sketcher.Constraint("Coincident", 2, 2, 3, 1))
sketch2.addConstraint(Sketcher.Constraint("Coincident", 3, 2, 0, 1))
sketch2.addConstraint(Sketcher.Constraint("Horizontal", 0))
sketch2.addConstraint(Sketcher.Constraint("Vertical", 1))
sketch2.addConstraint(Sketcher.Constraint("Horizontal", 2))
sketch2.addConstraint(Sketcher.Constraint("Vertical", 3))
sketch2.addConstraint(Sketcher.Constraint("Equal", 2, 1))
sketch2.addConstraint(Sketcher.Constraint("DistanceX", 0, 2, 0, 1, 10.0))
sketch2.addConstraint(Sketcher.Constraint("DistanceX", -1, 1, 0, 2, 40.0))
sketch2.addConstraint(Sketcher.Constraint("DistanceY", -1, 1, 0, 2, 5.0))
groove = body.newObject("PartDesign::Groove", "Groove")
groove.Profile = sketch2
groove.ReferenceAxis = (sketch2, ["V_Axis"])
groove.Angle = 360

doc.recompute()
